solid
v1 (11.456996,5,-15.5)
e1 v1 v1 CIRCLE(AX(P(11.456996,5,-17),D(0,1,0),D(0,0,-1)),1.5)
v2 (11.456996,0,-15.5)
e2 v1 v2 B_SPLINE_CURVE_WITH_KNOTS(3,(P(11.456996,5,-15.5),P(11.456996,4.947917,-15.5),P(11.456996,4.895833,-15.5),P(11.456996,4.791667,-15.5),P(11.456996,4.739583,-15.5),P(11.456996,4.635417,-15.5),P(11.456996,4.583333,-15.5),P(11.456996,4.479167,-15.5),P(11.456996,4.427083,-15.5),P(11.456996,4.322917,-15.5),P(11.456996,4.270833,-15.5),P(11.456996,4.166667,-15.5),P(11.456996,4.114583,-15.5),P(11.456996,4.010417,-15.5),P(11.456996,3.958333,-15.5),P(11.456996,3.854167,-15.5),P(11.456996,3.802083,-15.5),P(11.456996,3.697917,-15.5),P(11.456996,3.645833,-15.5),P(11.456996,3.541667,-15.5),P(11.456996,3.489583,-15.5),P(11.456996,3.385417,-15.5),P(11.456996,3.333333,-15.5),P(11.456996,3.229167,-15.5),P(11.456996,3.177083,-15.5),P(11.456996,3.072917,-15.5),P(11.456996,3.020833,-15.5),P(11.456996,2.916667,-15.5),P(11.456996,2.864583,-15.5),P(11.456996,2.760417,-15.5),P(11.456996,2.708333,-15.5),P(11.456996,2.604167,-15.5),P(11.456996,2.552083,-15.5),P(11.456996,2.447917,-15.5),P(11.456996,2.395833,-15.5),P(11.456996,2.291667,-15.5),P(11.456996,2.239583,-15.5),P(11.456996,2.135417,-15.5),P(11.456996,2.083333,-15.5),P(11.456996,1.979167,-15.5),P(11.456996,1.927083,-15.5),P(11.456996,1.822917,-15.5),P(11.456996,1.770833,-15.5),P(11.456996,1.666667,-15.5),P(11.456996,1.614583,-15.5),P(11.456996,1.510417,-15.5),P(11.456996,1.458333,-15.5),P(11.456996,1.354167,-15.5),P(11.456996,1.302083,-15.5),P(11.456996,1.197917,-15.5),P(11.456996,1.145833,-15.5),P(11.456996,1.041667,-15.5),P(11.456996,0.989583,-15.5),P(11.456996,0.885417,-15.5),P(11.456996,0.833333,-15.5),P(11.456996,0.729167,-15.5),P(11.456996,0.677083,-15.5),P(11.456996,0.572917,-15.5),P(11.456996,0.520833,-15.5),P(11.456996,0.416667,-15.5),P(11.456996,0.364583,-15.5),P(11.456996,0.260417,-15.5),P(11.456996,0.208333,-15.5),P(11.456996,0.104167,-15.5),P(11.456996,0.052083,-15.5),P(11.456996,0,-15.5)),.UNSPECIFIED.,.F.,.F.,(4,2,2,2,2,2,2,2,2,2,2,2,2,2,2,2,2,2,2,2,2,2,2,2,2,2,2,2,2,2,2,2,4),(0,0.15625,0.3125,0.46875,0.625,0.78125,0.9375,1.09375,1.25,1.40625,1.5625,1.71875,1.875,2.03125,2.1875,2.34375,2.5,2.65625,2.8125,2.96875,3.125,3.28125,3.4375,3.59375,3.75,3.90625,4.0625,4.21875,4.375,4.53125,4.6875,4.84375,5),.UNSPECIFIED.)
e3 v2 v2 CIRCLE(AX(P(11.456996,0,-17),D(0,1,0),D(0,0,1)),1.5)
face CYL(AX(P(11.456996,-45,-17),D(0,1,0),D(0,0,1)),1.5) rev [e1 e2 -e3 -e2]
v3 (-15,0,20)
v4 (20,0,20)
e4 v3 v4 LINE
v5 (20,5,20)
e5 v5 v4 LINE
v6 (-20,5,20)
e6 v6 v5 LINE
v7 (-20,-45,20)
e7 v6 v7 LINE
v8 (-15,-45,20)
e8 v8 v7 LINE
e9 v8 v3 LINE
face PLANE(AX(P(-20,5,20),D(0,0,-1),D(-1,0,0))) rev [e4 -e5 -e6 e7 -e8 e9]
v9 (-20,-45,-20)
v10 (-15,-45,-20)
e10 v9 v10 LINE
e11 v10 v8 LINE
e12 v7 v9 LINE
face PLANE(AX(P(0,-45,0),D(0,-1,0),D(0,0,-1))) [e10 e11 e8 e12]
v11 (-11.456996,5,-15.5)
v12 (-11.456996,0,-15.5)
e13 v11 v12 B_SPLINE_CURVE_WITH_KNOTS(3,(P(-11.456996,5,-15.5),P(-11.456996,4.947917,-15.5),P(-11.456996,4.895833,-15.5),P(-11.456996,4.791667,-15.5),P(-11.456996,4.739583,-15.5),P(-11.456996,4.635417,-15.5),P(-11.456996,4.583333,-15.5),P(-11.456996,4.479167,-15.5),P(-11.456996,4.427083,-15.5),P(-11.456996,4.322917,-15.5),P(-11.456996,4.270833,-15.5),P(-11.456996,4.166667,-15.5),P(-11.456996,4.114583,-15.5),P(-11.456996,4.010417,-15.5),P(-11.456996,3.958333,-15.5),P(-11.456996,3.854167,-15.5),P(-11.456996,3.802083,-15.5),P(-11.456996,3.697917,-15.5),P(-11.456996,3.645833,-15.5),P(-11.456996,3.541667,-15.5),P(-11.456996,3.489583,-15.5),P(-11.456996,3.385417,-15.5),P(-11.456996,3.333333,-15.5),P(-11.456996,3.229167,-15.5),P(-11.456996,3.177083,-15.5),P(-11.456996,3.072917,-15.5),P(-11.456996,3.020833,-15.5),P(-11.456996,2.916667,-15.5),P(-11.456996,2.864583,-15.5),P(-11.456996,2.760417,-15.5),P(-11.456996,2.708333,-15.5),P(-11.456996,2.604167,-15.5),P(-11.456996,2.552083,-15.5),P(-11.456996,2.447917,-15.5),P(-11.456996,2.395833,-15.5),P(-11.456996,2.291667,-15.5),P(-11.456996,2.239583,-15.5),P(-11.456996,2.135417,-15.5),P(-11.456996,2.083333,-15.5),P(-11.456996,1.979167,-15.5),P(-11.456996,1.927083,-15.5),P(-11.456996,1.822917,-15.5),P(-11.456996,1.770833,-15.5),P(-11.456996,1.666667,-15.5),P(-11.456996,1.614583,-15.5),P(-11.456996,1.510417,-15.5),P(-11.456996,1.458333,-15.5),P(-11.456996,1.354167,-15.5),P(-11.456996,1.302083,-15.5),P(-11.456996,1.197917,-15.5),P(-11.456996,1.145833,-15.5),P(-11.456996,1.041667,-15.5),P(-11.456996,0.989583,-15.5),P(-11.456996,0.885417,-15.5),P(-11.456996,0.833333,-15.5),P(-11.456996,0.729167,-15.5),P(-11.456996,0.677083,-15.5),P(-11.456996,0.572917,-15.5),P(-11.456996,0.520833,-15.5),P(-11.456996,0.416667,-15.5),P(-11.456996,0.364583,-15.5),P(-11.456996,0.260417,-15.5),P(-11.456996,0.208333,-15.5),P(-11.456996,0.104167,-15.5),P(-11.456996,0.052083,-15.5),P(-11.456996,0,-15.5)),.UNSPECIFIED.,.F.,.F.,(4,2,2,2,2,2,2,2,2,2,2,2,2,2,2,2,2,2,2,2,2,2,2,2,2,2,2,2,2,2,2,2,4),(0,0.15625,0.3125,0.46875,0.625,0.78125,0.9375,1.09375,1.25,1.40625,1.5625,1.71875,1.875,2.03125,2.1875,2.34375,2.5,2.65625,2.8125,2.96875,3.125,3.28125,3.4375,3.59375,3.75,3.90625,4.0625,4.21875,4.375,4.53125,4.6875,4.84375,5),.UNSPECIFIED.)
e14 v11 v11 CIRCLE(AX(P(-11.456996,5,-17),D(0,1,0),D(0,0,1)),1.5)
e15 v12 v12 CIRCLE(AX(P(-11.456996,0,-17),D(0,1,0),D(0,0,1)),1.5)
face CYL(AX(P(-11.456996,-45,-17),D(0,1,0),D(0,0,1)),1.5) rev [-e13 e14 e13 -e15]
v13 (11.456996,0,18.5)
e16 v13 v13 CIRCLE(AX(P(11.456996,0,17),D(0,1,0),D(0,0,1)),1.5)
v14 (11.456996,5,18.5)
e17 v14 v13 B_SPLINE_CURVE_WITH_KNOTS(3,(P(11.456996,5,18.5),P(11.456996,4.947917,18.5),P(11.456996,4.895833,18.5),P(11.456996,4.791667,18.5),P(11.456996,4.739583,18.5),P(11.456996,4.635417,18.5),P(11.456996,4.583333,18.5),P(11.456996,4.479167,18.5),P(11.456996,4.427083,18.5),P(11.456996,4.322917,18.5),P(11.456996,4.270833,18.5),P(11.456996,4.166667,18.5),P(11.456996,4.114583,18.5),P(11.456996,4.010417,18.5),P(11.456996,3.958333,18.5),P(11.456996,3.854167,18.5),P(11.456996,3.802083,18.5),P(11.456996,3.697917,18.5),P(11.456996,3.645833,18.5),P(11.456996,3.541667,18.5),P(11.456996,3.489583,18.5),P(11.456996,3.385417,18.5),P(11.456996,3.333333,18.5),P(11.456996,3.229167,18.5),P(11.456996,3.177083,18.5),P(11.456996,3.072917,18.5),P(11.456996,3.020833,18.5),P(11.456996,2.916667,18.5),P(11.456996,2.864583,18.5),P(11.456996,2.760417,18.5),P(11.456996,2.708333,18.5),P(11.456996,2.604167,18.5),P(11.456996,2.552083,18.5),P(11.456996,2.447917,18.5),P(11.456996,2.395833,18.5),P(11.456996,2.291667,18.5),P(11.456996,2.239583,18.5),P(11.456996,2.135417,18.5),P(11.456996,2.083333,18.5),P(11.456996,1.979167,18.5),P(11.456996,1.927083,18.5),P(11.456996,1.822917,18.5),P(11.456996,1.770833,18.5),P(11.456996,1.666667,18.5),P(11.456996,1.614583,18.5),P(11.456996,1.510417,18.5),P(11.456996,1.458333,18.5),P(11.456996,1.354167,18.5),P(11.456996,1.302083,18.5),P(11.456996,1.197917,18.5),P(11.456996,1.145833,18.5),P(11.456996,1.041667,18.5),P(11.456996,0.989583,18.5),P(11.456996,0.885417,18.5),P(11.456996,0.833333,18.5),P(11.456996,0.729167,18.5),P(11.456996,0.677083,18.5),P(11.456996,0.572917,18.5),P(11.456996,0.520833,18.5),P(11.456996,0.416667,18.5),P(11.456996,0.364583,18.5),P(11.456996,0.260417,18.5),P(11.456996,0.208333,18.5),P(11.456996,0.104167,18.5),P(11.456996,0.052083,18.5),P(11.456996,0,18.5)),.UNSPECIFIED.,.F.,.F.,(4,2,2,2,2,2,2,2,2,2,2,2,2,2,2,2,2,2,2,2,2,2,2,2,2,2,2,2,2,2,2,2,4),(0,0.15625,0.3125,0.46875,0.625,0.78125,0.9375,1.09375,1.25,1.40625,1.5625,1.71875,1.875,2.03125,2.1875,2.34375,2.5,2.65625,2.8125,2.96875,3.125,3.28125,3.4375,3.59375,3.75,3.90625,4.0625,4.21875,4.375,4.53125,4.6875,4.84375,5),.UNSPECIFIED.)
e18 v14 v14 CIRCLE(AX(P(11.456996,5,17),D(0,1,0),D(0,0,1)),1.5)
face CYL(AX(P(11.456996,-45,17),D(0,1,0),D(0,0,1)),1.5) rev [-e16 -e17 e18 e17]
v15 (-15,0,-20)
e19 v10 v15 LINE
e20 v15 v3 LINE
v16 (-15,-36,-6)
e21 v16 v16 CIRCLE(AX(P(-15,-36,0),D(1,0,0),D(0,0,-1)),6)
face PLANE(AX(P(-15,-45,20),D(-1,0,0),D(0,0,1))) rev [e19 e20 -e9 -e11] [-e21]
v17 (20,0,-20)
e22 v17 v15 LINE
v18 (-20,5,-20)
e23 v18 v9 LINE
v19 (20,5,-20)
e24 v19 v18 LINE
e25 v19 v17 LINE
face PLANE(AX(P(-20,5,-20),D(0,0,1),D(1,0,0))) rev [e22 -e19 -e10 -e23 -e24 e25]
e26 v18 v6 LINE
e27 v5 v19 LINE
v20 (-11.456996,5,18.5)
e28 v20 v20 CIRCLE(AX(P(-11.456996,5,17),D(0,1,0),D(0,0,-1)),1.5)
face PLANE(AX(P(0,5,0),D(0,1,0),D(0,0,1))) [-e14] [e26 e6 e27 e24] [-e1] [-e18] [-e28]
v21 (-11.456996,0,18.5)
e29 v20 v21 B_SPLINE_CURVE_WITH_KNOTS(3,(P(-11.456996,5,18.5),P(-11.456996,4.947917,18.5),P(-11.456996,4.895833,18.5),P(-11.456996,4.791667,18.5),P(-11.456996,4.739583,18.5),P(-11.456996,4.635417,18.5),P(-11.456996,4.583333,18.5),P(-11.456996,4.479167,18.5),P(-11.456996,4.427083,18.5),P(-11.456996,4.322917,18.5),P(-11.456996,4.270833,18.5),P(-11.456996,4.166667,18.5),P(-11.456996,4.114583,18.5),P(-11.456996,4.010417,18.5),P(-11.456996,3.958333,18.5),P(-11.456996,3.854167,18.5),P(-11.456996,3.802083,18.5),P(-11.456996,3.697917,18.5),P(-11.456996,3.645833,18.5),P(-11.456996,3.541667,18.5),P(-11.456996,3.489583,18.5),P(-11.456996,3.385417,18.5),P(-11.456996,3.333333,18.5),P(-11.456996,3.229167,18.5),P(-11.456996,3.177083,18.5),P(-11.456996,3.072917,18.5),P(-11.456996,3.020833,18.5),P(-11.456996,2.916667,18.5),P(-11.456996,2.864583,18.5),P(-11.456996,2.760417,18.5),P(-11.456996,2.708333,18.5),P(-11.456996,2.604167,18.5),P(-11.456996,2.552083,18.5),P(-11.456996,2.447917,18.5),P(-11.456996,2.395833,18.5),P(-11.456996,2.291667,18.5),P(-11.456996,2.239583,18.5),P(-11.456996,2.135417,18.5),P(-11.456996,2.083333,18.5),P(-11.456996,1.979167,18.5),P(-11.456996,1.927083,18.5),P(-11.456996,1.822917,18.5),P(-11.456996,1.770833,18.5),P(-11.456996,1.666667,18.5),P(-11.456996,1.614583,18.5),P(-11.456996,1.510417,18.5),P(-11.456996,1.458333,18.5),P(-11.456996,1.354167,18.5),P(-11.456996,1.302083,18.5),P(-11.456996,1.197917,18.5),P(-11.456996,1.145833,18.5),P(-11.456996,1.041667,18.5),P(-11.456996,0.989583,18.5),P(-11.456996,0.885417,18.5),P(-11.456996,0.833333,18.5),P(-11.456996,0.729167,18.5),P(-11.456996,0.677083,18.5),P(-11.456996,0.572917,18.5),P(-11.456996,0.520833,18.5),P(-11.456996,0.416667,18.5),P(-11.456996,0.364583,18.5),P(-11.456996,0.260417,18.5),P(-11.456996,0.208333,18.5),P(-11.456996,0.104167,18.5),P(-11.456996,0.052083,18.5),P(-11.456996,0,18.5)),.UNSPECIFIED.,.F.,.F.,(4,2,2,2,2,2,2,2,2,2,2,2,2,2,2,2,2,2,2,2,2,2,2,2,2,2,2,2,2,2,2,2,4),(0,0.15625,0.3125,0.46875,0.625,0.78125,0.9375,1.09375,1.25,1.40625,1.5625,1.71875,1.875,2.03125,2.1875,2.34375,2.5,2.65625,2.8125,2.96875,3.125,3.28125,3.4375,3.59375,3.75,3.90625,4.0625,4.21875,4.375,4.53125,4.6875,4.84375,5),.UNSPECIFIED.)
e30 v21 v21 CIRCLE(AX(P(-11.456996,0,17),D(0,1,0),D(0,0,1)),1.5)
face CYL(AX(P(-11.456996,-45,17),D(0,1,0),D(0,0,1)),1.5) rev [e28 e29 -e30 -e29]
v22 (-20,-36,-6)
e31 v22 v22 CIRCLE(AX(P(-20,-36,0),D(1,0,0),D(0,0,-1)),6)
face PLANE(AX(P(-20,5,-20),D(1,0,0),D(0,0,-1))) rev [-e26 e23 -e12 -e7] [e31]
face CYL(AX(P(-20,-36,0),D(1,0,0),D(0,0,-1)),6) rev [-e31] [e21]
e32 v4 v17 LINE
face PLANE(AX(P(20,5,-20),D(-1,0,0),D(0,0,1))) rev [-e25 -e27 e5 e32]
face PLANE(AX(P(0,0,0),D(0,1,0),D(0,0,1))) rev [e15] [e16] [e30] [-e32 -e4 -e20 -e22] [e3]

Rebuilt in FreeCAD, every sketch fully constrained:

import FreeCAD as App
import Part
import Sketcher

V = App.Vector


def add_polygon(sketch, points):
    """Adds a closed chain of lines whose ends are joined by coincident constraints."""
    first, n = sketch.GeometryCount, len(points)
    for a, b in zip(points, points[1:] + points[:1]):
        sketch.addGeometry(Part.LineSegment(App.Vector(*a, 0), App.Vector(*b, 0)), False)
    for i in range(n):
        sketch.addConstraint(Sketcher.Constraint("Coincident", first + i, 2, first + (i + 1) % n, 1))

doc = App.newDocument("Part")
body = doc.addObject("PartDesign::Body", "Body")

# Sketch on XZ plane
sketch1 = doc.addObject("Sketcher::SketchObject", "Sketch")
body.addObject(sketch1)
sketch1.AttachmentSupport = (doc.XZ_Plane, [""])
sketch1.MapMode = "FlatFace"
add_polygon(sketch1, [(-20, -20), (-20, 20), (20, 20), (20, -20)])  # lines 0-3
sketch1.addConstraint(Sketcher.Constraint("Vertical", 0))
sketch1.addConstraint(Sketcher.Constraint("Horizontal", 1))
sketch1.addConstraint(Sketcher.Constraint("Vertical", 2))
sketch1.addConstraint(Sketcher.Constraint("Horizontal", 3))
sketch1.addConstraint(Sketcher.Constraint("Symmetric", 0, 2, 2, 2, -1, 1))
sketch1.addConstraint(Sketcher.Constraint("Equal", 3, 0))
sketch1.addConstraint(Sketcher.Constraint("DistanceX", 1, 1, 1, 2, 40.0))
pad1 = doc.addObject("PartDesign::Pad", "Pad")
body.addObject(pad1)
pad1.Profile = sketch1
pad1.Length = 5
pad1.Reversed = True

# Sketch on XZ plane
sketch2 = doc.addObject("Sketcher::SketchObject", "Sketch001")
body.addObject(sketch2)
sketch2.AttachmentSupport = (doc.XZ_Plane, [""])
sketch2.MapMode = "FlatFace"
add_polygon(sketch2, [(-20, 20), (-20, -20), (-15, -20), (-15, 20)])  # lines 0-3
sketch2.addConstraint(Sketcher.Constraint("Vertical", 0))
sketch2.addConstraint(Sketcher.Constraint("Horizontal", 1))
sketch2.addConstraint(Sketcher.Constraint("Vertical", 2))
sketch2.addConstraint(Sketcher.Constraint("Horizontal", 3))
sketch2.addConstraint(Sketcher.Constraint("DistanceX", 1, 1, 1, 2, 5.0))
sketch2.addConstraint(Sketcher.Constraint("DistanceY", 0, 2, 0, 1, 40.0))
sketch2.addConstraint(Sketcher.Constraint("DistanceX", 0, 2, -1, 1, 20.0))
sketch2.addConstraint(Sketcher.Constraint("DistanceY", 0, 2, -1, 1, 20.0))
pad2 = doc.addObject("PartDesign::Pad", "Pad001")
body.addObject(pad2)
pad2.Profile = sketch2
pad2.Length = 45

# Sketch on YZ plane
sketch3 = doc.addObject("Sketcher::SketchObject", "Sketch002")
body.addObject(sketch3)
sketch3.AttachmentSupport = (doc.YZ_Plane, [""])
sketch3.MapMode = "FlatFace"
sketch3.AttachmentOffset = App.Placement(V(0, 0, -15), App.Rotation())
sketch3.addGeometry(Part.Circle(V(-36, 0, 0), V(0, 0, 1), 6), False)
sketch3.addConstraint(Sketcher.Constraint("PointOnObject", 0, 3, -1))
sketch3.addConstraint(Sketcher.Constraint("Diameter", 0, 12.0))
sketch3.addConstraint(Sketcher.Constraint("DistanceX", 0, 3, -1, 1, 36.0))
pocket1 = doc.addObject("PartDesign::Pocket", "Pocket")
body.addObject(pocket1)
pocket1.Profile = sketch3
pocket1.Type = "ThroughAll"

# Sketch on XZ plane
sketch4 = doc.addObject("Sketcher::SketchObject", "Sketch003")
body.addObject(sketch4)
sketch4.AttachmentSupport = (doc.XZ_Plane, [""])
sketch4.MapMode = "FlatFace"
sketch4.AttachmentOffset = App.Placement(V(0, 0, -5), App.Rotation())
sketch4.addGeometry(Part.Circle(V(-11.456996, -17, 0), V(0, 0, 1), 1.5), False)
sketch4.addGeometry(Part.Circle(V(11.456996, -17, 0), V(0, 0, 1), 1.5), False)
sketch4.addGeometry(Part.Circle(V(11.456996, 17, 0), V(0, 0, 1), 1.5), False)
sketch4.addGeometry(Part.Circle(V(-11.456996, 17, 0), V(0, 0, 1), 1.5), False)
sketch4.addConstraint(Sketcher.Constraint("Equal", 0, 1))
sketch4.addConstraint(Sketcher.Constraint("Equal", 1, 2))
sketch4.addConstraint(Sketcher.Constraint("Equal", 2, 3))
sketch4.addConstraint(Sketcher.Constraint("Symmetric", 0, 3, 2, 3, -1, 1))
sketch4.addConstraint(Sketcher.Constraint("Symmetric", 1, 3, 3, 3, -1, 1))
sketch4.addConstraint(Sketcher.Constraint("Symmetric", 0, 3, 1, 3, -2))
sketch4.addConstraint(Sketcher.Constraint("Diameter", 0, 3.0))
sketch4.addConstraint(Sketcher.Constraint("DistanceY", 0, 3, -1, 1, 17.0))
sketch4.addConstraint(Sketcher.Constraint("DistanceX", 0, 3, -1, 1, 11.456996))
pocket2 = doc.addObject("PartDesign::Pocket", "Pocket001")
body.addObject(pocket2)
pocket2.Profile = sketch4
pocket2.Type = "ThroughAll"
pocket2.Reversed = True

doc.recompute()
